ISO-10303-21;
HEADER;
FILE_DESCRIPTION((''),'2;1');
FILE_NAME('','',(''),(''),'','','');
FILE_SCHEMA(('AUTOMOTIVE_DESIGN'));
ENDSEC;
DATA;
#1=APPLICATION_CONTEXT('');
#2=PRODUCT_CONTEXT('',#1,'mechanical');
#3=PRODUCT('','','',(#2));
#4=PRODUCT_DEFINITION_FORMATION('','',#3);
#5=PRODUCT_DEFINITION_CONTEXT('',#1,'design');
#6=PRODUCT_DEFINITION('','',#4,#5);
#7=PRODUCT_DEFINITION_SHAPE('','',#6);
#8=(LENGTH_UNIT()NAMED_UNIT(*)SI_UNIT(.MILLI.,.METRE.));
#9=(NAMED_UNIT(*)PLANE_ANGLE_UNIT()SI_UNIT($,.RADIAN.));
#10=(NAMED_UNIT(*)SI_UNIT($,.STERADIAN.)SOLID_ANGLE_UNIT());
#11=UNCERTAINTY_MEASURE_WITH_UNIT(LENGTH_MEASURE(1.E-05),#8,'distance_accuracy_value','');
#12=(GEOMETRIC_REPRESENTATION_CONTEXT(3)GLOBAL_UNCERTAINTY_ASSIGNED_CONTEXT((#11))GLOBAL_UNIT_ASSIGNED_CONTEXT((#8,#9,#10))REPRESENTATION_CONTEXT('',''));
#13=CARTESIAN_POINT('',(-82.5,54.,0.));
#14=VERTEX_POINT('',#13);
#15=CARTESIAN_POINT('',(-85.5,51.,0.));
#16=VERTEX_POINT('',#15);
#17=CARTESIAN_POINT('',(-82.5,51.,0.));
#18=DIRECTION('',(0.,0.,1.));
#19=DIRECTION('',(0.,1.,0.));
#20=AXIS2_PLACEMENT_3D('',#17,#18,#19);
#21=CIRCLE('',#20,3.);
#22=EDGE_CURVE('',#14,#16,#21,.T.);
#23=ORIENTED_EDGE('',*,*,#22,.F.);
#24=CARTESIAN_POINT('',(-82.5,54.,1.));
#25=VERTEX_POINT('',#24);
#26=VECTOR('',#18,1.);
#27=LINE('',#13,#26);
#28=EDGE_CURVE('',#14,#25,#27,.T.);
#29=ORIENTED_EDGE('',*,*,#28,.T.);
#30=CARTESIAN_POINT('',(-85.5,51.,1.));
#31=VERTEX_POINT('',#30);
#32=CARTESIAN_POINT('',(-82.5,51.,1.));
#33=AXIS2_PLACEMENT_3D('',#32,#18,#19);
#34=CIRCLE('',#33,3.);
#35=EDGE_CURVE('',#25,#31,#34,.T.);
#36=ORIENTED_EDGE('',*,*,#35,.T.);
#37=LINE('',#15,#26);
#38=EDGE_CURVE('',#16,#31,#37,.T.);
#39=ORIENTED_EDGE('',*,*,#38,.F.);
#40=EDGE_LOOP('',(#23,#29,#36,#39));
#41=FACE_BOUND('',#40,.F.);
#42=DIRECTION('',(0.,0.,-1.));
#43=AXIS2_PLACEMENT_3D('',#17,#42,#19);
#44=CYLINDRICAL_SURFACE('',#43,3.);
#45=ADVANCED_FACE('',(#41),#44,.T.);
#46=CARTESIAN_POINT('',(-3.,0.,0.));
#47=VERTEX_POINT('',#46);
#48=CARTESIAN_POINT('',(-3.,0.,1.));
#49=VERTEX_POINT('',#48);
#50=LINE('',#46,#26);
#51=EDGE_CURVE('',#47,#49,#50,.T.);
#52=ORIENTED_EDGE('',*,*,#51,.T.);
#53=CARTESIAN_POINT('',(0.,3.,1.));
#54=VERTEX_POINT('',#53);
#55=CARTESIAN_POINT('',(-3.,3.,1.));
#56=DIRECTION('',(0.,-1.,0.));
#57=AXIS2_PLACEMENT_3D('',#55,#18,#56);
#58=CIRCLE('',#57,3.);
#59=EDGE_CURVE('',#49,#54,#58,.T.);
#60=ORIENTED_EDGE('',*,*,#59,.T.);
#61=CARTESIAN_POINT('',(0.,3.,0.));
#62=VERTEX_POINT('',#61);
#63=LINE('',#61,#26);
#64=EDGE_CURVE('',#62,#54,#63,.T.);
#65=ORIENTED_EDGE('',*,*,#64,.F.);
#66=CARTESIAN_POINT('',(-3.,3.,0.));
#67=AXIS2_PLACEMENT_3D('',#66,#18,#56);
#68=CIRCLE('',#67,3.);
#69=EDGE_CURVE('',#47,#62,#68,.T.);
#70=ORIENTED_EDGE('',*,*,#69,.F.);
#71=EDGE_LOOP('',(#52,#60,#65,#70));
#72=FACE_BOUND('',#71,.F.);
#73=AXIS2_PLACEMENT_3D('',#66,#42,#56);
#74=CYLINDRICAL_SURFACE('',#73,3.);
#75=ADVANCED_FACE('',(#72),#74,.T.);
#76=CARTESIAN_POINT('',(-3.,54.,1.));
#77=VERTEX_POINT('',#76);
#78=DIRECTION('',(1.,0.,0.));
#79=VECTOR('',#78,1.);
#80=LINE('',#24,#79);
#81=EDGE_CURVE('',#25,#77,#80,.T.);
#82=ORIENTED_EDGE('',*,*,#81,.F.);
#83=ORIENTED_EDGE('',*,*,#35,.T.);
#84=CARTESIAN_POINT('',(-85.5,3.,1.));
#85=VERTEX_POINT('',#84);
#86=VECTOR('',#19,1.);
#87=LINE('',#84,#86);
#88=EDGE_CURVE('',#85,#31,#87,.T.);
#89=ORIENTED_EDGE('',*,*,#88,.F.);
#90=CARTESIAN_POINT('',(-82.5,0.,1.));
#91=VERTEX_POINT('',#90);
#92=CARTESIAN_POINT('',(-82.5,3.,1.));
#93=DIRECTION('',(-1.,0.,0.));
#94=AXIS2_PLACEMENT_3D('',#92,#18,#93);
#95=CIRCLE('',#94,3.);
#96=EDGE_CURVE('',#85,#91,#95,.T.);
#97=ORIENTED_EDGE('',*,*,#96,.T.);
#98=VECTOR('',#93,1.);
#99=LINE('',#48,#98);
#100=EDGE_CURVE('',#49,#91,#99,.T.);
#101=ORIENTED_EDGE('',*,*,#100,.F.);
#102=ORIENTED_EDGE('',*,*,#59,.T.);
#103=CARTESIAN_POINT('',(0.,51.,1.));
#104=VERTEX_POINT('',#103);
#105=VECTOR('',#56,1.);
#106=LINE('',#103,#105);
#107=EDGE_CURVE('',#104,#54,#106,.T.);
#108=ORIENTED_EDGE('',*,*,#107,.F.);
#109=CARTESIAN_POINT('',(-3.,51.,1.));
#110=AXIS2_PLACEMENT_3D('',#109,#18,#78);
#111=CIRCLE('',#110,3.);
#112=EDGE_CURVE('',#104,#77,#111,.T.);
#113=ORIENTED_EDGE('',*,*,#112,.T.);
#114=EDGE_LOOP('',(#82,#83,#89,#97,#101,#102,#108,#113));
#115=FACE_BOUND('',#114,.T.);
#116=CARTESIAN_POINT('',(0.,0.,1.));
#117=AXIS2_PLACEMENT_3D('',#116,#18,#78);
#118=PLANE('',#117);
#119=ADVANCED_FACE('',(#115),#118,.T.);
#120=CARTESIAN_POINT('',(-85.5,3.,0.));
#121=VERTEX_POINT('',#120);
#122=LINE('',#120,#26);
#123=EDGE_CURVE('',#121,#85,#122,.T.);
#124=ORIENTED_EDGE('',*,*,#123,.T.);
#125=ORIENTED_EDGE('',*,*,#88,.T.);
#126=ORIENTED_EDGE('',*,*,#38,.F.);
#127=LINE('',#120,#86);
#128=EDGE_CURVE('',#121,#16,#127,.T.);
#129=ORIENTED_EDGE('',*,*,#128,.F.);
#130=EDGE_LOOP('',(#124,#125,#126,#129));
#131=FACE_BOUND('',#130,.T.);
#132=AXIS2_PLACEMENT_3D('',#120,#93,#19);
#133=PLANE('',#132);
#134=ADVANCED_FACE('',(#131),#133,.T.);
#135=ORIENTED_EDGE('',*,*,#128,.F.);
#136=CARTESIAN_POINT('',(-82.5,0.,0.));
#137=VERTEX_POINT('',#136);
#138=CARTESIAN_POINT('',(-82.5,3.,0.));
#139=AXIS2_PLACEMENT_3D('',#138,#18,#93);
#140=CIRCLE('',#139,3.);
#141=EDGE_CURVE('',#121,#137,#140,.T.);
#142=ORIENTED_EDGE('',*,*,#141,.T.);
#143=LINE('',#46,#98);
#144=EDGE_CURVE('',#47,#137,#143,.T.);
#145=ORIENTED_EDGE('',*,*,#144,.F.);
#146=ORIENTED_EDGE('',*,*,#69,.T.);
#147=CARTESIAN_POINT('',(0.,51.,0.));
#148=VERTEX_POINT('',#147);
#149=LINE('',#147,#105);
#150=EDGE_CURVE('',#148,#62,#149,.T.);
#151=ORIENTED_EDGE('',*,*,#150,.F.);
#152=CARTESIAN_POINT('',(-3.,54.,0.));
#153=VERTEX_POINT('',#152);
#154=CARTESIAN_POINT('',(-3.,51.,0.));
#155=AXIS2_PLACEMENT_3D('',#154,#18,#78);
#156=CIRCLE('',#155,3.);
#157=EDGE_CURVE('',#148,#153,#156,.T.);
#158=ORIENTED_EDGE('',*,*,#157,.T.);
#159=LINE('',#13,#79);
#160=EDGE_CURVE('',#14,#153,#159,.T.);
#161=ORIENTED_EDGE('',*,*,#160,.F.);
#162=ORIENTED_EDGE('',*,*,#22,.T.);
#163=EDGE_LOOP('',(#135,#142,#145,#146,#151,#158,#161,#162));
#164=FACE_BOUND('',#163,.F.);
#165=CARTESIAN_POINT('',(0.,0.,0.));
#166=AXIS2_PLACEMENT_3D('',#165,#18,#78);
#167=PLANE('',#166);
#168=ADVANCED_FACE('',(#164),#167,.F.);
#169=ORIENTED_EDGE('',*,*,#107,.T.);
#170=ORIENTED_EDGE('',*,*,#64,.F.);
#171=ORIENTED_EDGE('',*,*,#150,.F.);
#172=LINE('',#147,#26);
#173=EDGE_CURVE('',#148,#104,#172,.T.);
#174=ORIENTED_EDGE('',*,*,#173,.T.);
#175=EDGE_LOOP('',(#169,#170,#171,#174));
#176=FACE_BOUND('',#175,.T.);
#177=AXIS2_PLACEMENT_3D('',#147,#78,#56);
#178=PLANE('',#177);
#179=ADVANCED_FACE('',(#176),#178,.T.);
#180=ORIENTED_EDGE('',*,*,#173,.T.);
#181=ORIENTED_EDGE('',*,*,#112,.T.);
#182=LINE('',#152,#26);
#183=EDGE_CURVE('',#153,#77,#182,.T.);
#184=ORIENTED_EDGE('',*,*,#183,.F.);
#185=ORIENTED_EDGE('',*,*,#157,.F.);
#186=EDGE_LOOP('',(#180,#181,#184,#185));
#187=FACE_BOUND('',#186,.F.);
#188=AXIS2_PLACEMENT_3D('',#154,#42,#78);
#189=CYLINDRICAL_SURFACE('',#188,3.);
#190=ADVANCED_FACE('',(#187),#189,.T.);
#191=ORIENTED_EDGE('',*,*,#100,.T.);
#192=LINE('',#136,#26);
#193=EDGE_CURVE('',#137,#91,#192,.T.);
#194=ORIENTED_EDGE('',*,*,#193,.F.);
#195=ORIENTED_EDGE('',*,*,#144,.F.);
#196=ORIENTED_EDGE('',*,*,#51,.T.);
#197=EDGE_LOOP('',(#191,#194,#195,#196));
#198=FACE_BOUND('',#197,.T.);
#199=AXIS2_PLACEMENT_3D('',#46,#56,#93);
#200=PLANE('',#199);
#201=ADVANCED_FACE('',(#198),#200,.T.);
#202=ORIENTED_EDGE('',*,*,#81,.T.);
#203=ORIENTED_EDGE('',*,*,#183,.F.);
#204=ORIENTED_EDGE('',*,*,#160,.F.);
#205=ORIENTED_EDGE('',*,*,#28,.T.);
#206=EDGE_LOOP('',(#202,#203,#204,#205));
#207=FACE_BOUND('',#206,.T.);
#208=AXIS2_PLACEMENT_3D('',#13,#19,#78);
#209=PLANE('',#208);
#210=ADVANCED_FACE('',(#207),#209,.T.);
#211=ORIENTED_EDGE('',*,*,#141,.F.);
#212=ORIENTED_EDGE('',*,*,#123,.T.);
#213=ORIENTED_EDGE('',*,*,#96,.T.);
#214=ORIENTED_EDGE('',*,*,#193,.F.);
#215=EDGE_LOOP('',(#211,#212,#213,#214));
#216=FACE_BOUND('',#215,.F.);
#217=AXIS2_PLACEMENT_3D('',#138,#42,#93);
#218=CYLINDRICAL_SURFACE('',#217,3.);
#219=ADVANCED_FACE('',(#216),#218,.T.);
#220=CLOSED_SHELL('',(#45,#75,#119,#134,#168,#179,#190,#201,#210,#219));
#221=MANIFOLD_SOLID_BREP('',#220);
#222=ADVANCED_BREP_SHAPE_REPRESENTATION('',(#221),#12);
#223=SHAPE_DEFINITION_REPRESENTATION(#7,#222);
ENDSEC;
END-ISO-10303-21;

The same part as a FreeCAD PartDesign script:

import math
import FreeCAD as App
import Part
import Sketcher
from FreeCAD import Vector

doc = App.newDocument("Part")
body = doc.addObject("PartDesign::Body", "Body")

# Sketch on XY plane
sketch1 = body.newObject("Sketcher::SketchObject", "Sketch")
sketch1.AttachmentSupport = (doc.getObject("XY_Plane"), [""])
sketch1.MapMode = "FlatFace"
sketch1.addGeometry([
    Part.LineSegment(Vector(-82.5, 0, 0), Vector(-3, 0, 0)),  # 0
    Part.ArcOfCircle(Part.Circle(Vector(-3, 3, 0), Vector(0, 0, 1), 3), math.radians(-90), math.radians(0)),  # 1
    Part.LineSegment(Vector(0, 3, 0), Vector(0, 51, 0)),  # 2
    Part.ArcOfCircle(Part.Circle(Vector(-3, 51, 0), Vector(0, 0, 1), 3), math.radians(0), math.radians(90)),  # 3
    Part.LineSegment(Vector(-3, 54, 0), Vector(-82.5, 54, 0)),  # 4
    Part.ArcOfCircle(Part.Circle(Vector(-82.5, 51, 0), Vector(0, 0, 1), 3), math.radians(90), math.radians(180)),  # 5
    Part.LineSegment(Vector(-85.5, 51, 0), Vector(-85.5, 3, 0)),  # 6
    Part.ArcOfCircle(Part.Circle(Vector(-82.5, 3, 0), Vector(0, 0, 1), 3), math.radians(180), math.radians(270)),  # 7
], False)
sketch1.addConstraint([
    Sketcher.Constraint("Tangent", 0, 2, 1, 1),
    Sketcher.Constraint("Tangent", 1, 2, 2, 1),
    Sketcher.Constraint("Tangent", 2, 2, 3, 1),
    Sketcher.Constraint("Tangent", 3, 2, 4, 1),
    Sketcher.Constraint("Tangent", 4, 2, 5, 1),
    Sketcher.Constraint("Tangent", 5, 2, 6, 1),
    Sketcher.Constraint("Tangent", 6, 2, 7, 1),
    Sketcher.Constraint("Tangent", 7, 2, 0, 1),
    Sketcher.Constraint("Horizontal", 0),
    Sketcher.Constraint("Vertical", 2),
    Sketcher.Constraint("Horizontal", 4),
    Sketcher.Constraint("Vertical", 6),
    Sketcher.Constraint("Equal", 1, 3),
    Sketcher.Constraint("Equal", 3, 5),
    Sketcher.Constraint("Equal", 5, 7),
    Sketcher.Constraint("PointOnObject", 0, 2, -1),
    Sketcher.Constraint("PointOnObject", 1, 2, -2),
    Sketcher.Constraint("Radius", 1, 3.0),
    Sketcher.Constraint("DistanceY", -1, 1, 3, 2, 54.0),
    Sketcher.Constraint("DistanceX", 5, 2, -1, 1, 85.5),
])
pad1 = body.newObject("PartDesign::Pad", "Pad")
pad1.Profile = sketch1
pad1.Length = 1

doc.recompute()
